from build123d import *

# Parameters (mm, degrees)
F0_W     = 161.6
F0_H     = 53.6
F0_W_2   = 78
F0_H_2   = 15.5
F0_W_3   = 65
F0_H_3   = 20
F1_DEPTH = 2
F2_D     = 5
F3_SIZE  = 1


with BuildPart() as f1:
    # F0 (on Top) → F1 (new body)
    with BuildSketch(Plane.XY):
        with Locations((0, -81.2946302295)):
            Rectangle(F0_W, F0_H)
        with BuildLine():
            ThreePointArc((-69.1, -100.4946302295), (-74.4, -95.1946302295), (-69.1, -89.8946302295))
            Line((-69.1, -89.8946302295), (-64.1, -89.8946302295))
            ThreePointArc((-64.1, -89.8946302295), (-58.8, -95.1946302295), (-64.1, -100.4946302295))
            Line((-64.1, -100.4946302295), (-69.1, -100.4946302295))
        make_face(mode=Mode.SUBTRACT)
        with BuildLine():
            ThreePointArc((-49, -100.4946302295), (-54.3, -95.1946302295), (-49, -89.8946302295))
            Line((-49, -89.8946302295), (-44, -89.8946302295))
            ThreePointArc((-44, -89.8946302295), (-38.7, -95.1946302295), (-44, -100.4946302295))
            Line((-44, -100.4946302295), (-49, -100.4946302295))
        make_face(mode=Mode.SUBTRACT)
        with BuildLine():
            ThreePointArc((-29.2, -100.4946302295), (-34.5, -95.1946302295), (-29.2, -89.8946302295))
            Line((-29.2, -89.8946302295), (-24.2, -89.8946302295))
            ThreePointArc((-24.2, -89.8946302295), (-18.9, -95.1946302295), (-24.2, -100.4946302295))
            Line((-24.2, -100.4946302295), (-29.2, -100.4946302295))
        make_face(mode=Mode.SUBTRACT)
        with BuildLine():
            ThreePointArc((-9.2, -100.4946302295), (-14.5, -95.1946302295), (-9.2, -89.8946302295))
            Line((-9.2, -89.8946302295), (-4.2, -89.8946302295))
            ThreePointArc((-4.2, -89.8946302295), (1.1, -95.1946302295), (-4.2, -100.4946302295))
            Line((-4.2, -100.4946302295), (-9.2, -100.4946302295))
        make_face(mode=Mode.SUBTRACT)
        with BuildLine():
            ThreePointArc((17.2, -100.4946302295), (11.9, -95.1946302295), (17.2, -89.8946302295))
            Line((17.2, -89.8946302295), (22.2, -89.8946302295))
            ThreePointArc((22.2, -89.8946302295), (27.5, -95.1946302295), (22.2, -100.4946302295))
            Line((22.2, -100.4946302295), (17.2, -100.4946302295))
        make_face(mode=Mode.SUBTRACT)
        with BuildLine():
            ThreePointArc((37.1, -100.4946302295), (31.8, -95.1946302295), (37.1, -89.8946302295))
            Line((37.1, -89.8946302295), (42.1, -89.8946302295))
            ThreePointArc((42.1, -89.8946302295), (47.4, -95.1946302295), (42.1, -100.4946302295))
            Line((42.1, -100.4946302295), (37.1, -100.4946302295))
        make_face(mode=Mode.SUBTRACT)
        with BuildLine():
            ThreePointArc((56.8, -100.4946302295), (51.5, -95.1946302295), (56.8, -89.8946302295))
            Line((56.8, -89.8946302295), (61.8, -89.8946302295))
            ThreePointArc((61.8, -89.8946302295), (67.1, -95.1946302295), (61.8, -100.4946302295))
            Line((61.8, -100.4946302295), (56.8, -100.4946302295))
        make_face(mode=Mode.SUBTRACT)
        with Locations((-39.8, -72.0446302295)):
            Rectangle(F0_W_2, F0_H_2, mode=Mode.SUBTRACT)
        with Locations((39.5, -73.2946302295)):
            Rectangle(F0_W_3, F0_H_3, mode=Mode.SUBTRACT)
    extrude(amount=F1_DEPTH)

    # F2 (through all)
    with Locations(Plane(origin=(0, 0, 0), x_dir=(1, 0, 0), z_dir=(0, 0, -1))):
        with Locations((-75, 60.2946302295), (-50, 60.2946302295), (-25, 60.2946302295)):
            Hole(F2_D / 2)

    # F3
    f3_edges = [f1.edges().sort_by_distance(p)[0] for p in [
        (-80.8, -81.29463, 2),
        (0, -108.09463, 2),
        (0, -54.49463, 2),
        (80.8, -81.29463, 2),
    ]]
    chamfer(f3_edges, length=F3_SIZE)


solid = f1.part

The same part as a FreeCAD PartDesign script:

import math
import FreeCAD as App
import Part
import Sketcher
from FreeCAD import Vector


def edges_at(feature, points):
    """Names of the edges that pass closest to the given points."""
    edges = feature.Shape.Edges
    near = lambda p: min(range(len(edges)), key=lambda i: edges[i].distToShape(Part.Vertex(*p))[0])
    return sorted({f"Edge{near(p) + 1}" for p in points})

doc = App.newDocument("Part")
body = doc.addObject("PartDesign::Body", "Body")

# Sketch on XY plane
sketch1 = body.newObject("Sketcher::SketchObject", "Sketch")
sketch1.AttachmentSupport = (doc.getObject("XY_Plane"), [""])
sketch1.MapMode = "FlatFace"
sketch1.addGeometry([
    Part.LineSegment(Vector(-80.8, -54.49463, 0), Vector(-80.8, -108.09463, 0)),  # 0
    Part.LineSegment(Vector(-80.8, -108.09463, 0), Vector(80.8, -108.09463, 0)),  # 1
    Part.LineSegment(Vector(80.8, -108.09463, 0), Vector(80.8, -54.49463, 0)),  # 2
    Part.LineSegment(Vector(80.8, -54.49463, 0), Vector(-80.8, -54.49463, 0)),  # 3
    Part.LineSegment(Vector(-64.1, -100.49463, 0), Vector(-69.1, -100.49463, 0)),  # 4
    Part.ArcOfCircle(Part.Circle(Vector(-69.1, -95.19463, 0), Vector(0, 0, 1), 5.3), math.radians(90), math.radians(270)),  # 5
    Part.LineSegment(Vector(-69.1, -89.89463, 0), Vector(-64.1, -89.89463, 0)),  # 6
    Part.ArcOfCircle(Part.Circle(Vector(-64.1, -95.19463, 0), Vector(0, 0, 1), 5.3), math.radians(-90), math.radians(90)),  # 7
    Part.LineSegment(Vector(-44, -100.49463, 0), Vector(-49, -100.49463, 0)),  # 8
    Part.ArcOfCircle(Part.Circle(Vector(-49, -95.19463, 0), Vector(0, 0, 1), 5.3), math.radians(90), math.radians(270)),  # 9
    Part.LineSegment(Vector(-49, -89.89463, 0), Vector(-44, -89.89463, 0)),  # 10
    Part.ArcOfCircle(Part.Circle(Vector(-44, -95.19463, 0), Vector(0, 0, 1), 5.3), math.radians(-90), math.radians(90)),  # 11
    Part.LineSegment(Vector(-24.2, -100.49463, 0), Vector(-29.2, -100.49463, 0)),  # 12
    Part.ArcOfCircle(Part.Circle(Vector(-29.2, -95.19463, 0), Vector(0, 0, 1), 5.3), math.radians(90), math.radians(270)),  # 13
    Part.LineSegment(Vector(-29.2, -89.89463, 0), Vector(-24.2, -89.89463, 0)),  # 14
    Part.ArcOfCircle(Part.Circle(Vector(-24.2, -95.19463, 0), Vector(0, 0, 1), 5.3), math.radians(-90), math.radians(90)),  # 15
    Part.LineSegment(Vector(-4.2, -100.49463, 0), Vector(-9.2, -100.49463, 0)),  # 16
    Part.ArcOfCircle(Part.Circle(Vector(-9.2, -95.19463, 0), Vector(0, 0, 1), 5.3), math.radians(90), math.radians(270)),  # 17
    Part.LineSegment(Vector(-9.2, -89.89463, 0), Vector(-4.2, -89.89463, 0)),  # 18
    Part.ArcOfCircle(Part.Circle(Vector(-4.2, -95.19463, 0), Vector(0, 0, 1), 5.3), math.radians(-90), math.radians(90)),  # 19
    Part.LineSegment(Vector(22.2, -100.49463, 0), Vector(17.2, -100.49463, 0)),  # 20
    Part.ArcOfCircle(Part.Circle(Vector(17.2, -95.19463, 0), Vector(0, 0, 1), 5.3), math.radians(90), math.radians(270)),  # 21
    Part.LineSegment(Vector(17.2, -89.89463, 0), Vector(22.2, -89.89463, 0)),  # 22
    Part.ArcOfCircle(Part.Circle(Vector(22.2, -95.19463, 0), Vector(0, 0, 1), 5.3), math.radians(-90), math.radians(90)),  # 23
    Part.LineSegment(Vector(42.1, -100.49463, 0), Vector(37.1, -100.49463, 0)),  # 24
    Part.ArcOfCircle(Part.Circle(Vector(37.1, -95.19463, 0), Vector(0, 0, 1), 5.3), math.radians(90), math.radians(270)),  # 25
    Part.LineSegment(Vector(37.1, -89.89463, 0), Vector(42.1, -89.89463, 0)),  # 26
    Part.ArcOfCircle(Part.Circle(Vector(42.1, -95.19463, 0), Vector(0, 0, 1), 5.3), math.radians(-90), math.radians(90)),  # 27
    Part.LineSegment(Vector(61.8, -100.49463, 0), Vector(56.8, -100.49463, 0)),  # 28
    Part.ArcOfCircle(Part.Circle(Vector(56.8, -95.19463, 0), Vector(0, 0, 1), 5.3), math.radians(90), math.radians(270)),  # 29
    Part.LineSegment(Vector(56.8, -89.89463, 0), Vector(61.8, -89.89463, 0)),  # 30
    Part.ArcOfCircle(Part.Circle(Vector(61.8, -95.19463, 0), Vector(0, 0, 1), 5.3), math.radians(-90), math.radians(90)),  # 31
    Part.LineSegment(Vector(-0.8, -79.79463, 0), Vector(-78.8, -79.79463, 0)),  # 32
    Part.LineSegment(Vector(-78.8, -79.79463, 0), Vector(-78.8, -64.29463, 0)),  # 33
    Part.LineSegment(Vector(-78.8, -64.29463, 0), Vector(-0.8, -64.29463, 0)),  # 34
    Part.LineSegment(Vector(-0.8, -64.29463, 0), Vector(-0.8, -79.79463, 0)),  # 35
    Part.LineSegment(Vector(72, -83.29463, 0), Vector(7, -83.29463, 0)),  # 36
    Part.LineSegment(Vector(7, -83.29463, 0), Vector(7, -63.29463, 0)),  # 37
    Part.LineSegment(Vector(7, -63.29463, 0), Vector(72, -63.29463, 0)),  # 38
    Part.LineSegment(Vector(72, -63.29463, 0), Vector(72, -83.29463, 0)),  # 39
], False)
sketch1.addConstraint([
    Sketcher.Constraint("Coincident", 0, 2, 1, 1),
    Sketcher.Constraint("Coincident", 1, 2, 2, 1),
    Sketcher.Constraint("Coincident", 2, 2, 3, 1),
    Sketcher.Constraint("Coincident", 3, 2, 0, 1),
    Sketcher.Constraint("Tangent", 4, 2, 5, 2),
    Sketcher.Constraint("Tangent", 5, 1, 6, 1),
    Sketcher.Constraint("Tangent", 6, 2, 7, 2),
    Sketcher.Constraint("Tangent", 7, 1, 4, 1),
    Sketcher.Constraint("Tangent", 8, 2, 9, 2),
    Sketcher.Constraint("Tangent", 9, 1, 10, 1),
    Sketcher.Constraint("Tangent", 10, 2, 11, 2),
    Sketcher.Constraint("Tangent", 11, 1, 8, 1),
    Sketcher.Constraint("Tangent", 12, 2, 13, 2),
    Sketcher.Constraint("Tangent", 13, 1, 14, 1),
    Sketcher.Constraint("Tangent", 14, 2, 15, 2),
    Sketcher.Constraint("Tangent", 15, 1, 12, 1),
    Sketcher.Constraint("Tangent", 16, 2, 17, 2),
    Sketcher.Constraint("Tangent", 17, 1, 18, 1),
    Sketcher.Constraint("Tangent", 18, 2, 19, 2),
    Sketcher.Constraint("Tangent", 19, 1, 16, 1),
    Sketcher.Constraint("Tangent", 20, 2, 21, 2),
    Sketcher.Constraint("Tangent", 21, 1, 22, 1),
    Sketcher.Constraint("Tangent", 22, 2, 23, 2),
    Sketcher.Constraint("Tangent", 23, 1, 20, 1),
    Sketcher.Constraint("Tangent", 24, 2, 25, 2),
    Sketcher.Constraint("Tangent", 25, 1, 26, 1),
    Sketcher.Constraint("Tangent", 26, 2, 27, 2),
    Sketcher.Constraint("Tangent", 27, 1, 24, 1),
    Sketcher.Constraint("Tangent", 28, 2, 29, 2),
    Sketcher.Constraint("Tangent", 29, 1, 30, 1),
    Sketcher.Constraint("Tangent", 30, 2, 31, 2),
    Sketcher.Constraint("Tangent", 31, 1, 28, 1),
    Sketcher.Constraint("Coincident", 32, 2, 33, 1),
    Sketcher.Constraint("Coincident", 33, 2, 34, 1),
    Sketcher.Constraint("Coincident", 34, 2, 35, 1),
    Sketcher.Constraint("Coincident", 35, 2, 32, 1),
    Sketcher.Constraint("Coincident", 36, 2, 37, 1),
    Sketcher.Constraint("Coincident", 37, 2, 38, 1),
    Sketcher.Constraint("Coincident", 38, 2, 39, 1),
    Sketcher.Constraint("Coincident", 39, 2, 36, 1),
    Sketcher.Constraint("Vertical", 0),
    Sketcher.Constraint("Horizontal", 1),
    Sketcher.Constraint("Vertical", 2),
    Sketcher.Constraint("Horizontal", 3),
    Sketcher.Constraint("Horizontal", 4),
    Sketcher.Constraint("Horizontal", 6),
    Sketcher.Constraint("Horizontal", 8),
    Sketcher.Constraint("Horizontal", 10),
    Sketcher.Constraint("Horizontal", 12),
    Sketcher.Constraint("Horizontal", 14),
    Sketcher.Constraint("Horizontal", 16),
    Sketcher.Constraint("Horizontal", 18),
    Sketcher.Constraint("Horizontal", 20),
    Sketcher.Constraint("Horizontal", 22),
    Sketcher.Constraint("Horizontal", 24),
    Sketcher.Constraint("Horizontal", 26),
    Sketcher.Constraint("Horizontal", 28),
    Sketcher.Constraint("Horizontal", 30),
    Sketcher.Constraint("Horizontal", 32),
    Sketcher.Constraint("Vertical", 33),
    Sketcher.Constraint("Horizontal", 34),
    Sketcher.Constraint("Vertical", 35),
    Sketcher.Constraint("Horizontal", 36),
    Sketcher.Constraint("Vertical", 37),
    Sketcher.Constraint("Horizontal", 38),
    Sketcher.Constraint("Vertical", 39),
    Sketcher.Constraint("Equal", 7, 9),
    Sketcher.Constraint("Equal", 11, 13),
    Sketcher.Constraint("Equal", 15, 17),
    Sketcher.Constraint("Equal", 19, 21),
    Sketcher.Constraint("Equal", 23, 25),
    Sketcher.Constraint("Equal", 27, 29),
    Sketcher.Constraint("Horizontal", 7, 3, 9, 3),
    Sketcher.Constraint("Horizontal", 11, 3, 13, 3),
    Sketcher.Constraint("Horizontal", 15, 3, 17, 3),
    Sketcher.Constraint("Horizontal", 19, 3, 21, 3),
    Sketcher.Constraint("Horizontal", 23, 3, 25, 3),
    Sketcher.Constraint("Horizontal", 27, 3, 29, 3),
    Sketcher.Constraint("Equal", 6, 8),
    Sketcher.Constraint("Equal", 10, 12),
    Sketcher.Constraint("Equal", 14, 16),
    Sketcher.Constraint("Equal", 18, 20),
    Sketcher.Constraint("Equal", 22, 24),
    Sketcher.Constraint("Equal", 26, 28),
    Sketcher.Constraint("Radius", 5, 5.3),
    Sketcher.Constraint("DistanceX", 4, 2, 4, 1, 5.0),
    Sketcher.Constraint("DistanceX", 32, 2, 32, 1, 78.0),
    Sketcher.Constraint("DistanceX", 36, 2, 36, 1, 65.0),
    Sketcher.Constraint("DistanceY", 37, 1, 37, 2, 20.0),
    Sketcher.Constraint("DistanceX", 1, 1, 1, 2, 161.6),
    Sketcher.Constraint("DistanceY", 0, 2, 0, 1, 53.6),
    Sketcher.Constraint("DistanceY", 33, 1, 33, 2, 15.5),
    Sketcher.Constraint("DistanceX", 9, 3, -1, 1, 49.0),
    Sketcher.Constraint("DistanceX", -1, 1, 36, 2, 7.0),
    Sketcher.Constraint("DistanceX", 15, 3, 17, 3, 15.0),
    Sketcher.Constraint("DistanceX", 19, 3, 29, 3, 61.0),
    Sketcher.Constraint("DistanceX", 31, 3, 1, 2, 19.0),
    Sketcher.Constraint("DistanceX", 3, 2, 33, 2, 2.0),
    Sketcher.Constraint("DistanceX", 34, 2, 21, 1, 18.0),
    Sketcher.Constraint("DistanceY", 34, 2, 37, 2, 1.0),
    Sketcher.Constraint("DistanceX", 5, 3, -1, 1, 69.1),
    Sketcher.Constraint("DistanceX", 13, 3, -1, 1, 29.2),
    Sketcher.Constraint("DistanceX", -1, 1, 25, 3, 37.1),
    Sketcher.Constraint("DistanceY", 0, 2, 5, 3, 12.9),
    Sketcher.Constraint("DistanceY", 5, 1, 32, 2, 10.1),
    Sketcher.Constraint("DistanceY", 5, 3, -1, 1, 95.19463),
])
pad1 = body.newObject("PartDesign::Pad", "Pad")
pad1.Profile = sketch1
pad1.Length = 2

# Sketch on XY plane
sketch2 = body.newObject("Sketcher::SketchObject", "Sketch001")
sketch2.AttachmentSupport = (doc.getObject("XY_Plane"), [""])
sketch2.MapMode = "FlatFace"
sketch2.addGeometry([
    Part.Circle(Vector(-75, -60.29463, 0), Vector(0, 0, 1), 2.5),
    Part.Circle(Vector(-50, -60.29463, 0), Vector(0, 0, 1), 2.5),
    Part.Circle(Vector(-25, -60.29463, 0), Vector(0, 0, 1), 2.5),
], False)
sketch2.addConstraint([
    Sketcher.Constraint("Equal", 0, 1),
    Sketcher.Constraint("Equal", 1, 2),
    Sketcher.Constraint("Horizontal", 0, 3, 1, 3),
    Sketcher.Constraint("Horizontal", 1, 3, 2, 3),
    Sketcher.Constraint("Diameter", 0, 5.0),
    Sketcher.Constraint("DistanceX", 0, 3, -1, 1, 75.0),
    Sketcher.Constraint("DistanceX", 1, 3, -1, 1, 50.0),
    Sketcher.Constraint("DistanceX", 2, 3, -1, 1, 25.0),
    Sketcher.Constraint("DistanceY", 0, 3, -1, 1, 60.29463),
])
doc.recompute()
hole = body.newObject("PartDesign::Hole", "Hole")
hole.Profile = sketch2
hole.ThreadType = "None"
hole.Diameter = 5
hole.DepthType = "ThroughAll"
hole.Reversed = True
doc.recompute()

chamfer = body.newObject("PartDesign::Chamfer", "Chamfer")
chamfer.Base = (hole, edges_at(hole, [
    (-80.8, -81.295, 2),
    (0, -108.095, 2),
    (0, -54.495, 2),
    (80.8, -81.295, 2),
]))
chamfer.Size = 1

doc.recompute()
